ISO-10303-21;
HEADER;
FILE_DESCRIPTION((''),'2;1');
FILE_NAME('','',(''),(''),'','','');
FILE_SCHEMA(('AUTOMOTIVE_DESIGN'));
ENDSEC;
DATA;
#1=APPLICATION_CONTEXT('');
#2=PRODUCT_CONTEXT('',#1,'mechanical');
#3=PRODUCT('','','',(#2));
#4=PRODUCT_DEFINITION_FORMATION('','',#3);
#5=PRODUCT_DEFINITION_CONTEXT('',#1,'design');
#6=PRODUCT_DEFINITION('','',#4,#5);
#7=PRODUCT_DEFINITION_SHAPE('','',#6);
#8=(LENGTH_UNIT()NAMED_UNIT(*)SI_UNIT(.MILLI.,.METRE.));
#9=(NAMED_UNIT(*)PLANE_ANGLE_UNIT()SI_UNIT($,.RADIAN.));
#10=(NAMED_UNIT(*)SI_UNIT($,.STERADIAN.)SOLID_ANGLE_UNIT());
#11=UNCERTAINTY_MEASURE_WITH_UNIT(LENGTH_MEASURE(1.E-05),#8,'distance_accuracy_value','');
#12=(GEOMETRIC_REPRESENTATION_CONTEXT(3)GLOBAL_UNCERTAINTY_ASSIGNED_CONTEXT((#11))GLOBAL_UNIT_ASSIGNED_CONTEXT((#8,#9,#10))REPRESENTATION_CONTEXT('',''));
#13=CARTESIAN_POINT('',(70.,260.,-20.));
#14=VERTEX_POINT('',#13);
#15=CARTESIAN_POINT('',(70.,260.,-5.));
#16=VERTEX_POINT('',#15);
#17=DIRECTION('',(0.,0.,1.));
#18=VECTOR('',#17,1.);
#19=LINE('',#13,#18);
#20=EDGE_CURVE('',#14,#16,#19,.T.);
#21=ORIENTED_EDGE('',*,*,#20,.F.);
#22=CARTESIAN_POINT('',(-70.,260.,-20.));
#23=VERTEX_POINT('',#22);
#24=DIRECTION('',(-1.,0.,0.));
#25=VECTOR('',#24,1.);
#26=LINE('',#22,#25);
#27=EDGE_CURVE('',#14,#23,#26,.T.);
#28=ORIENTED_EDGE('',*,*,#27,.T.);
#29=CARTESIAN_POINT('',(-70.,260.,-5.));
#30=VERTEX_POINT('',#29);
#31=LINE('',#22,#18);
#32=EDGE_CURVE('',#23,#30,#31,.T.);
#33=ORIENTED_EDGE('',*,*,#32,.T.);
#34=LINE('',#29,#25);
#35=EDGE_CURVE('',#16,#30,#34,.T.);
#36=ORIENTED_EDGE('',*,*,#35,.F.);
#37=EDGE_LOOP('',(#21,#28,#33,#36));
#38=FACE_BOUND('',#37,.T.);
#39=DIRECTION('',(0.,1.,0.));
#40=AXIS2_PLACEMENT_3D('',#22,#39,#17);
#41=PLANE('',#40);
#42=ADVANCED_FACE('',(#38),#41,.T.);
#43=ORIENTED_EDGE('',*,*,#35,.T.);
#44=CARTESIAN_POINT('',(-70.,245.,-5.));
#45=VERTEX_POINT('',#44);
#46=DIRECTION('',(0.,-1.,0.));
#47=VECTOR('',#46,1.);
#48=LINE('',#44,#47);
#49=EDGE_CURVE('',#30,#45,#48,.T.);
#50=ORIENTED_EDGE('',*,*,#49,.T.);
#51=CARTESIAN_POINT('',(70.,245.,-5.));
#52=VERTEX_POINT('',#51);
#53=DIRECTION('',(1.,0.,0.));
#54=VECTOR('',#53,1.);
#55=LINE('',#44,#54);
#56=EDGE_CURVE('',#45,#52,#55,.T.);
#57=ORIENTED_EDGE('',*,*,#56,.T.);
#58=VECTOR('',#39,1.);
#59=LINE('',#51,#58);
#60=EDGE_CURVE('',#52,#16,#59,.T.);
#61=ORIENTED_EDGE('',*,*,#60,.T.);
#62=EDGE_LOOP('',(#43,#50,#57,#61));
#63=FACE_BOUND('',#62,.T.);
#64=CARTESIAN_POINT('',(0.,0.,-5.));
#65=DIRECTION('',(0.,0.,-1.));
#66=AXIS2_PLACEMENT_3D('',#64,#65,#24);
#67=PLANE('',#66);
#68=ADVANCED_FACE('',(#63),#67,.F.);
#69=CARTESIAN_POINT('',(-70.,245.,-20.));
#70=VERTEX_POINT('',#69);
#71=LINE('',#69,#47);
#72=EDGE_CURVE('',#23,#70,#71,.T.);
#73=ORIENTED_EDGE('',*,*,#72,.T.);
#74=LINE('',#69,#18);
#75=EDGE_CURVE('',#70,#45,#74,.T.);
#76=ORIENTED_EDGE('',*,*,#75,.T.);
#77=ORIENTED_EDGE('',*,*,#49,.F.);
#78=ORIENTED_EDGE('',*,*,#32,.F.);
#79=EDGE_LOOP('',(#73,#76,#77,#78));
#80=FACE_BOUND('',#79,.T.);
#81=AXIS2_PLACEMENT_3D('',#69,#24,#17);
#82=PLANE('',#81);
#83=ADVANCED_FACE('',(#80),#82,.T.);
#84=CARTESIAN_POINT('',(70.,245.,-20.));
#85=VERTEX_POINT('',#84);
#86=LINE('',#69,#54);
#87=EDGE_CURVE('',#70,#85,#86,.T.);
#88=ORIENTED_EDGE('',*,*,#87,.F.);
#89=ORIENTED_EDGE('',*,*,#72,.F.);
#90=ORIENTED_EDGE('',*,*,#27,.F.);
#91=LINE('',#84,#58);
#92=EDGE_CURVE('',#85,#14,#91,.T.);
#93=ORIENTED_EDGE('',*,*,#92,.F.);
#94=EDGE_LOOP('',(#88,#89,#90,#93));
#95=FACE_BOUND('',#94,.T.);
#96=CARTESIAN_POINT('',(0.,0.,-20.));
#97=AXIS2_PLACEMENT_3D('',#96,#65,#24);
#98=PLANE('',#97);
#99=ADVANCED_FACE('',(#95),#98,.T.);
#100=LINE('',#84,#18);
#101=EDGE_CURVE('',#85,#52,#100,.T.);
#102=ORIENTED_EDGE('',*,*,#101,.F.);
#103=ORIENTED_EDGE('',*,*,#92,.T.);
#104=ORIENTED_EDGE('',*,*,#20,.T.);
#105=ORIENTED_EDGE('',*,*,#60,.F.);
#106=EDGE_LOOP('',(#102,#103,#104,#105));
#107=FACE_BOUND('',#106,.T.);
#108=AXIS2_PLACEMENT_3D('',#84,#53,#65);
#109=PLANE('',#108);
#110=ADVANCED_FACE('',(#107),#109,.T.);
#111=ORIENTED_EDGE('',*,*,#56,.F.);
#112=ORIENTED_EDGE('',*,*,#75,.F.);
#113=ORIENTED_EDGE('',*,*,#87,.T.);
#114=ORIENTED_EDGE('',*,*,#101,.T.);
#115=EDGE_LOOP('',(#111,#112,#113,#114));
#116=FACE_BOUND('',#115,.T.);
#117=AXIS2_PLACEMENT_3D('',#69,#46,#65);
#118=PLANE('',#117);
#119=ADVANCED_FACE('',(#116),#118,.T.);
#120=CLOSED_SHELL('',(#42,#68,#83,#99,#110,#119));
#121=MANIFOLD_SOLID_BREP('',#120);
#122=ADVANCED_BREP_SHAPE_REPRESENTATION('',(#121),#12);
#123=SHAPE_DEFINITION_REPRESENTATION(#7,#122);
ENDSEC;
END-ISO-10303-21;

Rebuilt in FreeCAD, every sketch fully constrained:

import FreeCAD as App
import Part
import Sketcher
from FreeCAD import Vector
Q = App.Units.Quantity


def add_polygon(sketch, points):
    """Adds a closed chain of lines whose ends are joined by coincident constraints."""
    first, n = sketch.GeometryCount, len(points)
    for a, b in zip(points, points[1:] + points[:1]):
        sketch.addGeometry(Part.LineSegment(App.Vector(*a, 0), App.Vector(*b, 0)), False)
    for i in range(n):
        sketch.addConstraint(Sketcher.Constraint("Coincident", first + i, 2, first + (i + 1) % n, 1))

doc = App.newDocument("Part")
body = doc.addObject("PartDesign::Body", "Body")

sketch1 = body.newObject("Sketcher::SketchObject", "Sketch")
sketch1.AttachmentSupport = (doc.getObject("XY_Plane"), [""])
sketch1.MapMode = "FlatFace"
sketch1.AttachmentOffset = App.Placement(Vector(0, 0, -5), App.Rotation())
add_polygon(sketch1, [(-70, 260), (-70, 245), (70, 245), (70, 260)])
sketch1.addConstraint([
    Sketcher.Constraint("Vertical", 0),
    Sketcher.Constraint("Horizontal", 1),
    Sketcher.Constraint("Vertical", 2),
    Sketcher.Constraint("Horizontal", 3),
    Sketcher.Constraint("DistanceX", 1, 1, 1, 2, Q("140 mm")),
    Sketcher.Constraint("DistanceY", 0, 2, 0, 1, Q("15 mm")),
    Sketcher.Constraint("DistanceX", 0, 2, -1, 1, Q("70 mm")),
    Sketcher.Constraint("DistanceY", -1, 1, 0, 2, Q("245 mm")),
])
pad1 = body.newObject("PartDesign::Pad", "Pad")
pad1.Profile = sketch1
pad1.Length = 15
pad1.Reversed = True

doc.recompute()
